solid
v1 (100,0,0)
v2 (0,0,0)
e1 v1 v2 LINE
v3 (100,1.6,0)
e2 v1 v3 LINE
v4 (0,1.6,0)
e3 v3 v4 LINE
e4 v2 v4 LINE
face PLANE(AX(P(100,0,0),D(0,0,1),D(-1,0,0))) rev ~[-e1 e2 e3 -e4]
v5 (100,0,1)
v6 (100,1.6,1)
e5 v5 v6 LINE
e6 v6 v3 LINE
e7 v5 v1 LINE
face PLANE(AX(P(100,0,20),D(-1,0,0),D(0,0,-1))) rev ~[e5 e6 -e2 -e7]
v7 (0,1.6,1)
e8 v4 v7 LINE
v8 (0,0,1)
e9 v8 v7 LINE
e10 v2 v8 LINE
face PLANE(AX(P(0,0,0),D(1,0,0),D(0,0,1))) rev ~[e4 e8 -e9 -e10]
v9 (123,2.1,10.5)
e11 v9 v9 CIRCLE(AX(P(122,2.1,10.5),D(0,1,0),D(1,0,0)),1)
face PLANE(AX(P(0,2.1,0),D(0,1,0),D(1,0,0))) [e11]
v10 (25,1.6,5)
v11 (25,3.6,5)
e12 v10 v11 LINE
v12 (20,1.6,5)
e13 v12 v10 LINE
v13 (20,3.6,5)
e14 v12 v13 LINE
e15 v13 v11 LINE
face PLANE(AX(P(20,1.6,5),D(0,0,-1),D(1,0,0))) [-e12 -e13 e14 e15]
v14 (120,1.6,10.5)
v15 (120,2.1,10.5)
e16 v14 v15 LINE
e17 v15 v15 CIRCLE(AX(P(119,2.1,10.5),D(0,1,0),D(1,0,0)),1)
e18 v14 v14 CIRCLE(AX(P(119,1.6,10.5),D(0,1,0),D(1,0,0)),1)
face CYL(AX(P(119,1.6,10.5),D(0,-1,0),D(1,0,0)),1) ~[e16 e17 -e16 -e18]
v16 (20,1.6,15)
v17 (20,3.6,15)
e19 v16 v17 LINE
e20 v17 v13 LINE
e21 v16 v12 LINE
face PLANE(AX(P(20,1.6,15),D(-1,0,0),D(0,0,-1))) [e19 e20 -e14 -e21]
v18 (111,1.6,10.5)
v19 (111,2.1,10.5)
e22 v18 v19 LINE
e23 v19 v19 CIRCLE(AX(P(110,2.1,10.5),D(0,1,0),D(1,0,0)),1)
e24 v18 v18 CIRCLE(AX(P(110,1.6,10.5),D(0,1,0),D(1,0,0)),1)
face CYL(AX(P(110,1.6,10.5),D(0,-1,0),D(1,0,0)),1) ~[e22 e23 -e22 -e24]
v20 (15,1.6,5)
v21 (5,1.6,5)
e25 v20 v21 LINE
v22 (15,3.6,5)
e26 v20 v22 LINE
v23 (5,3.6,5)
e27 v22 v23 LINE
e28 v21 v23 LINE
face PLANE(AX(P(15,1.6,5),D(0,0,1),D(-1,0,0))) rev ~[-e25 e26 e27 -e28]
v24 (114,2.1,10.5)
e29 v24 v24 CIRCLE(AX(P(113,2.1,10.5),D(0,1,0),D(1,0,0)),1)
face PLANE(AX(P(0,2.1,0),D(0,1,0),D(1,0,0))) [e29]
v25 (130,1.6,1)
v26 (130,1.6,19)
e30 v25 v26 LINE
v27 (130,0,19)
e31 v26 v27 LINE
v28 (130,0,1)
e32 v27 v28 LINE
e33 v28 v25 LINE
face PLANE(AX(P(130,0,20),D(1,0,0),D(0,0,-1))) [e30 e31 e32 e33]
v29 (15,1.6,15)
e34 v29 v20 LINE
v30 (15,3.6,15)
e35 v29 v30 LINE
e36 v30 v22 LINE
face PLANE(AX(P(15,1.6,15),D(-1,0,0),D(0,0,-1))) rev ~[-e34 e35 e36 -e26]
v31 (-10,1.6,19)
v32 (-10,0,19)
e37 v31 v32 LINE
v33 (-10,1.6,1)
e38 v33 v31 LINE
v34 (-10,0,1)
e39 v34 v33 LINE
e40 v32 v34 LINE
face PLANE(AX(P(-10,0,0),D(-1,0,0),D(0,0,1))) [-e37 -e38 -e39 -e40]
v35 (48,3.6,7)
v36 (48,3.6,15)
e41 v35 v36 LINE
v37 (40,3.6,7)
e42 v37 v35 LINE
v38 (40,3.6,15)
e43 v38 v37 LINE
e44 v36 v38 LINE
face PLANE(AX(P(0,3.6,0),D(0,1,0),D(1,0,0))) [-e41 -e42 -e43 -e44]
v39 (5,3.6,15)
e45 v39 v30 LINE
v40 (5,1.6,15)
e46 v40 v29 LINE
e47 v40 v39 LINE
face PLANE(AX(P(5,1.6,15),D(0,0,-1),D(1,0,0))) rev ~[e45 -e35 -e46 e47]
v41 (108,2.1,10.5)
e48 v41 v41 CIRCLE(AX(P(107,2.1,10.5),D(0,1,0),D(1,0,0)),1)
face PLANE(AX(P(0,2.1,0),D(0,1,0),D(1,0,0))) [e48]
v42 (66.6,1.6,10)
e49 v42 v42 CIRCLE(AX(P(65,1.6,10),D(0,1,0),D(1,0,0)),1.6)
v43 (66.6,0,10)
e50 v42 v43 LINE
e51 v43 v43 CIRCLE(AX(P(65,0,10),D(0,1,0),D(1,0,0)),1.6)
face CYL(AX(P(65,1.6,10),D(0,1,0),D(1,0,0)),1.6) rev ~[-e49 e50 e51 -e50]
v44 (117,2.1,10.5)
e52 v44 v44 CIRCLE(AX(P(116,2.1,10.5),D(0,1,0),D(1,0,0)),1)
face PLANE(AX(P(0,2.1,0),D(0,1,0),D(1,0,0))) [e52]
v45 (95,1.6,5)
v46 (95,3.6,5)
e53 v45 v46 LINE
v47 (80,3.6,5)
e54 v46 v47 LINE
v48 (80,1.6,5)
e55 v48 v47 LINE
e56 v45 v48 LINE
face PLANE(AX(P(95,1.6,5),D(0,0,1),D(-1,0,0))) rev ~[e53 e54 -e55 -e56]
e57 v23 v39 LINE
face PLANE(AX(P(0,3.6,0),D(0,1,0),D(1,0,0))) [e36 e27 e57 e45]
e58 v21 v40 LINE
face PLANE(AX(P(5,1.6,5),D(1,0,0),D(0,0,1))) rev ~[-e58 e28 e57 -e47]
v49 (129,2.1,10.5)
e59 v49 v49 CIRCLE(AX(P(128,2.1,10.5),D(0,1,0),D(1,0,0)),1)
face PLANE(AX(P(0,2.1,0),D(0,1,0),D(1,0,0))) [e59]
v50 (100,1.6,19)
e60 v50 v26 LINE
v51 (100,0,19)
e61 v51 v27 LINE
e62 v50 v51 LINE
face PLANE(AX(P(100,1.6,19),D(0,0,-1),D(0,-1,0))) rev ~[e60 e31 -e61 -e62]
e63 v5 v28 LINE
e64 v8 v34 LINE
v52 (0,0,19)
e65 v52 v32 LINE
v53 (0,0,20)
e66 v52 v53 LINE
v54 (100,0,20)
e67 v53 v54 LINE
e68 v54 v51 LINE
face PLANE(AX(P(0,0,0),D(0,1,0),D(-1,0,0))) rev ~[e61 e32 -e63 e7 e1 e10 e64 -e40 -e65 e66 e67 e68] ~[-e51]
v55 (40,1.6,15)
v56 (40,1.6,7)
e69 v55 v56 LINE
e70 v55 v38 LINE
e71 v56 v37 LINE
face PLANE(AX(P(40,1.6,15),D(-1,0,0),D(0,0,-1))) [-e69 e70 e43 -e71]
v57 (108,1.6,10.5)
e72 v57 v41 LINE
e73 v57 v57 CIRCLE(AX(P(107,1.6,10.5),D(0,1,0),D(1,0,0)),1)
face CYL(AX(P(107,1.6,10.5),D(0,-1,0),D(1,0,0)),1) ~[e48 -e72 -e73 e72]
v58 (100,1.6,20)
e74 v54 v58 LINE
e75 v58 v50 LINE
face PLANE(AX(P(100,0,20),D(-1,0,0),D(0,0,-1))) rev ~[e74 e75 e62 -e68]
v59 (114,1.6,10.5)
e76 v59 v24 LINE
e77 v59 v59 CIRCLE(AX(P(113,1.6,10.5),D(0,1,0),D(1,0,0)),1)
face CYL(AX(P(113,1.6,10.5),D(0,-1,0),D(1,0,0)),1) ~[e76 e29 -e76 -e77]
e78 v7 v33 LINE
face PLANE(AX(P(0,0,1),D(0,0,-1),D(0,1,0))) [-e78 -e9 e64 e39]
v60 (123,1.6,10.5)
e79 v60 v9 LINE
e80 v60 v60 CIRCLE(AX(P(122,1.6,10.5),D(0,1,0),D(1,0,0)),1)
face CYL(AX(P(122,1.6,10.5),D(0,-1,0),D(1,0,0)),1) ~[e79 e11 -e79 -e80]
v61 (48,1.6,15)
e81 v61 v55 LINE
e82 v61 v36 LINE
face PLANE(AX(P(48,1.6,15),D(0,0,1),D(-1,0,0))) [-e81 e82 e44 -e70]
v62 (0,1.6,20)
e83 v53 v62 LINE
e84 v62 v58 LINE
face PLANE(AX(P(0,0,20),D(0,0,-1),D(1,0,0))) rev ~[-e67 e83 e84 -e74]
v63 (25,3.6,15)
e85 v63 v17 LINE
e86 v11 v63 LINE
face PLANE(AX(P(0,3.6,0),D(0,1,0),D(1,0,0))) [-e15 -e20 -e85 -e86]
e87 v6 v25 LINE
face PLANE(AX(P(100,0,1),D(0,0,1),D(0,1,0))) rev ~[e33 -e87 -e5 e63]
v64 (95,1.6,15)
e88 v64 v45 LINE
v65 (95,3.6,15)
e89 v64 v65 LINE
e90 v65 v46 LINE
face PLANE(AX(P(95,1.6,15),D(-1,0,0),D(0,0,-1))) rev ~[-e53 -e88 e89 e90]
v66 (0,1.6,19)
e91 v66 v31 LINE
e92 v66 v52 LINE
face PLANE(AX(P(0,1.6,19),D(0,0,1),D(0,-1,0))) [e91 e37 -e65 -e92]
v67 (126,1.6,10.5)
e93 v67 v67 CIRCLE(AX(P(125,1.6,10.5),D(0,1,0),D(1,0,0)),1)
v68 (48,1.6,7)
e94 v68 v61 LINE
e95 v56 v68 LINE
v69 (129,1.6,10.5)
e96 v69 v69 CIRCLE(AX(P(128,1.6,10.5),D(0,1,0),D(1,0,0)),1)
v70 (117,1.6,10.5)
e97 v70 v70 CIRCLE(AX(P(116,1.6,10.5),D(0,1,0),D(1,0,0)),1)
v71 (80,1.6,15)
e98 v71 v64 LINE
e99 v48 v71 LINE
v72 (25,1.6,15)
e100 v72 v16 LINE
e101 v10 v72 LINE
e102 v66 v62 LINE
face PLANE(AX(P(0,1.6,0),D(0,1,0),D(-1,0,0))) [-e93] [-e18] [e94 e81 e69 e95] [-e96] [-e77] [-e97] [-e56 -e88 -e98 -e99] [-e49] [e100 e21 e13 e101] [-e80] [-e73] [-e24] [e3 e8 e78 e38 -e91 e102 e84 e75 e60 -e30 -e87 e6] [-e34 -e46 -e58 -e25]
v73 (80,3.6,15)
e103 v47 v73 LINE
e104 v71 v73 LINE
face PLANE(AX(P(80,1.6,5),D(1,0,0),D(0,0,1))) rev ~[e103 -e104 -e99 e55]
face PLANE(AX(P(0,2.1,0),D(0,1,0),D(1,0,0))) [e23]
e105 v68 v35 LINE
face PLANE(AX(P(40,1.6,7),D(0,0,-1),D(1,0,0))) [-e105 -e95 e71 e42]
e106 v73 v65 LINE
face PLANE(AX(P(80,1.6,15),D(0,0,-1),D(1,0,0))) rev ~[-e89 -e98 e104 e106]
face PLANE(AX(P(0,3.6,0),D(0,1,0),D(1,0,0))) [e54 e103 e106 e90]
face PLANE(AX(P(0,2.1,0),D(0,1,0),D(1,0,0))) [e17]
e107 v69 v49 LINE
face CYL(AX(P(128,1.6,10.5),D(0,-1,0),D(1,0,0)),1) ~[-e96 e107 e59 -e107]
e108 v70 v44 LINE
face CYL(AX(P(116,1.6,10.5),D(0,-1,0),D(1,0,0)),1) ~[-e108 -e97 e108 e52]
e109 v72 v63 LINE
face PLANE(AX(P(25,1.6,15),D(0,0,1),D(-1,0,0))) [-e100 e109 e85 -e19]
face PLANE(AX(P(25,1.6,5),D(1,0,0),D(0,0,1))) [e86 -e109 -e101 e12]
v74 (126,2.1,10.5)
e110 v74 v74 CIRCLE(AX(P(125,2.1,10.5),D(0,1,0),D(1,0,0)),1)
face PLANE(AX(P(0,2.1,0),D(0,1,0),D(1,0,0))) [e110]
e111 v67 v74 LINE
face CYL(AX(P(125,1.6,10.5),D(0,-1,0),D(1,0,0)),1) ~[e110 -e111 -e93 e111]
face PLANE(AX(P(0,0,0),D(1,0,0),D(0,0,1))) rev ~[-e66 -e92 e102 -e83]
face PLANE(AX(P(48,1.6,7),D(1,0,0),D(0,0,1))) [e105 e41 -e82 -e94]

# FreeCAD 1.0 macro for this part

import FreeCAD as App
import Part
import Sketcher

V = App.Vector
Q = App.Units.Quantity


def add_polygon(sketch, points):
    """Adds a closed chain of lines whose ends are joined by coincident constraints."""
    first, n = sketch.GeometryCount, len(points)
    for a, b in zip(points, points[1:] + points[:1]):
        sketch.addGeometry(Part.LineSegment(App.Vector(*a, 0), App.Vector(*b, 0)), False)
    for i in range(n):
        sketch.addConstraint(Sketcher.Constraint("Coincident", first + i, 2, first + (i + 1) % n, 1))

doc = App.newDocument("Part")
body = doc.addObject("PartDesign::Body", "Body")

# Sketch on XZ plane
sketch1 = body.newObject("Sketcher::SketchObject", "Sketch")
sketch1.AttachmentSupport = (doc.getObject("XZ_Plane"), [""])
sketch1.MapMode = "FlatFace"
add_polygon(sketch1, [(0, 0), (0, 20), (100, 20), (100, 0)])  # lines 0-3
sketch1.addConstraint(Sketcher.Constraint("Vertical", 0))
sketch1.addConstraint(Sketcher.Constraint("Horizontal", 1))
sketch1.addConstraint(Sketcher.Constraint("Vertical", 2))
sketch1.addConstraint(Sketcher.Constraint("Horizontal", 3))
sketch1.addConstraint(Sketcher.Constraint("Coincident", 3, 2, -1, 1))
sketch1.addConstraint(Sketcher.Constraint("DistanceX", 1, 1, 1, 2, Q("100 mm")))
sketch1.addConstraint(Sketcher.Constraint("DistanceY", 0, 1, 0, 2, Q("20 mm")))
pad1 = body.newObject("PartDesign::Pad", "Pad")
pad1.Profile = sketch1
pad1.Length = 1.6
pad1.Reversed = True

# Sketch on XZ plane
sketch2 = body.newObject("Sketcher::SketchObject", "Sketch001")
sketch2.AttachmentSupport = (doc.getObject("XZ_Plane"), [""])
sketch2.MapMode = "FlatFace"
sketch2.AttachmentOffset = App.Placement(V(0, 0, -1.6), App.Rotation())
add_polygon(sketch2, [(5, 5), (5, 15), (15, 15), (15, 5)])  # lines 0-3
sketch2.addConstraint(Sketcher.Constraint("Vertical", 0))
sketch2.addConstraint(Sketcher.Constraint("Horizontal", 1))
sketch2.addConstraint(Sketcher.Constraint("Vertical", 2))
sketch2.addConstraint(Sketcher.Constraint("Horizontal", 3))
sketch2.addConstraint(Sketcher.Constraint("Equal", 3, 0))
sketch2.addConstraint(Sketcher.Constraint("DistanceX", 1, 1, 1, 2, Q("10 mm")))
sketch2.addConstraint(Sketcher.Constraint("DistanceX", -1, 1, 0, 2, Q("5 mm")))
sketch2.addConstraint(Sketcher.Constraint("DistanceY", -1, 1, 2, 2, Q("5 mm")))
pad2 = body.newObject("PartDesign::Pad", "Pad001")
pad2.Profile = sketch2
pad2.Length = 2
pad2.Reversed = True

# Sketch on XZ plane
sketch3 = body.newObject("Sketcher::SketchObject", "Sketch002")
sketch3.AttachmentSupport = (doc.getObject("XZ_Plane"), [""])
sketch3.MapMode = "FlatFace"
sketch3.AttachmentOffset = App.Placement(V(0, 0, -1.6), App.Rotation())
add_polygon(sketch3, [(80, 5), (80, 15), (95, 15), (95, 5)])  # lines 0-3
sketch3.addConstraint(Sketcher.Constraint("Vertical", 0))
sketch3.addConstraint(Sketcher.Constraint("Horizontal", 1))
sketch3.addConstraint(Sketcher.Constraint("Vertical", 2))
sketch3.addConstraint(Sketcher.Constraint("Horizontal", 3))
sketch3.addConstraint(Sketcher.Constraint("DistanceX", 1, 1, 1, 2, Q("15 mm")))
sketch3.addConstraint(Sketcher.Constraint("DistanceY", 0, 1, 0, 2, Q("10 mm")))
sketch3.addConstraint(Sketcher.Constraint("DistanceY", -1, 1, 0, 2, Q("15 mm")))
sketch3.addConstraint(Sketcher.Constraint("DistanceX", -1, 1, 0, 2, Q("80 mm")))
pad3 = body.newObject("PartDesign::Pad", "Pad002")
pad3.Profile = sketch3
pad3.Length = 2
pad3.Reversed = True

# Sketch on XZ plane
sketch4 = body.newObject("Sketcher::SketchObject", "Sketch003")
sketch4.AttachmentSupport = (doc.getObject("XZ_Plane"), [""])
sketch4.MapMode = "FlatFace"
sketch4.AttachmentOffset = App.Placement(V(0, 0, -1.6), App.Rotation())
add_polygon(sketch4, [(40, 15), (48, 15), (48, 7), (40, 7)])  # lines 0-3
sketch4.addConstraint(Sketcher.Constraint("Horizontal", 0))
sketch4.addConstraint(Sketcher.Constraint("Vertical", 1))
sketch4.addConstraint(Sketcher.Constraint("Horizontal", 2))
sketch4.addConstraint(Sketcher.Constraint("Vertical", 3))
sketch4.addConstraint(Sketcher.Constraint("Equal", 2, 1))
sketch4.addConstraint(Sketcher.Constraint("DistanceX", 0, 1, 0, 2, Q("8 mm")))
sketch4.addConstraint(Sketcher.Constraint("DistanceX", -1, 1, 2, 2, Q("40 mm")))
sketch4.addConstraint(Sketcher.Constraint("DistanceY", -1, 1, 0, 2, Q("15 mm")))
pad4 = body.newObject("PartDesign::Pad", "Pad003")
pad4.Profile = sketch4
pad4.Length = 2
pad4.Reversed = True

# Sketch on XZ plane
sketch5 = body.newObject("Sketcher::SketchObject", "Sketch004")
sketch5.AttachmentSupport = (doc.getObject("XZ_Plane"), [""])
sketch5.MapMode = "FlatFace"
sketch5.AttachmentOffset = App.Placement(V(0, 0, -1.6), App.Rotation())
add_polygon(sketch5, [(20, 15), (25, 15), (25, 5), (20, 5)])  # lines 0-3
sketch5.addConstraint(Sketcher.Constraint("Horizontal", 0))
sketch5.addConstraint(Sketcher.Constraint("Vertical", 1))
sketch5.addConstraint(Sketcher.Constraint("Horizontal", 2))
sketch5.addConstraint(Sketcher.Constraint("Vertical", 3))
sketch5.addConstraint(Sketcher.Constraint("DistanceX", 0, 1, 0, 2, Q("5 mm")))
sketch5.addConstraint(Sketcher.Constraint("DistanceY", 1, 2, 1, 1, Q("10 mm")))
sketch5.addConstraint(Sketcher.Constraint("DistanceY", -1, 1, 1, 2, Q("5 mm")))
sketch5.addConstraint(Sketcher.Constraint("DistanceX", -1, 1, 2, 2, Q("20 mm")))
pad5 = body.newObject("PartDesign::Pad", "Pad004")
pad5.Profile = sketch5
pad5.Length = 2
pad5.Reversed = True

# Sketch on YZ plane
sketch6 = body.newObject("Sketcher::SketchObject", "Sketch005")
sketch6.AttachmentSupport = (doc.getObject("YZ_Plane"), [""])
sketch6.MapMode = "FlatFace"
sketch6.AttachmentOffset = App.Placement(V(0, 0, 100), App.Rotation())
add_polygon(sketch6, [(1.6, 19), (0, 19), (0, 1), (1.6, 1)])  # lines 0-3
sketch6.addConstraint(Sketcher.Constraint("Horizontal", 0))
sketch6.addConstraint(Sketcher.Constraint("Vertical", 1))
sketch6.addConstraint(Sketcher.Constraint("Horizontal", 2))
sketch6.addConstraint(Sketcher.Constraint("Vertical", 3))
sketch6.addConstraint(Sketcher.Constraint("PointOnObject", 0, 2, -2))
sketch6.addConstraint(Sketcher.Constraint("DistanceY", 1, 2, 1, 1, Q("18 mm")))
sketch6.addConstraint(Sketcher.Constraint("DistanceX", 0, 2, 0, 1, Q("1.6 mm")))
sketch6.addConstraint(Sketcher.Constraint("DistanceY", -1, 1, 1, 2, Q("1 mm")))
pad6 = body.newObject("PartDesign::Pad", "Pad005")
pad6.Profile = sketch6
pad6.Length = 30

# Sketch on YZ plane
sketch7 = body.newObject("Sketcher::SketchObject", "Sketch006")
sketch7.AttachmentSupport = (doc.getObject("YZ_Plane"), [""])
sketch7.MapMode = "FlatFace"
add_polygon(sketch7, [(1.6, 19), (1.6, 1), (0, 1), (0, 19)])  # lines 0-3
sketch7.addConstraint(Sketcher.Constraint("Vertical", 0))
sketch7.addConstraint(Sketcher.Constraint("Horizontal", 1))
sketch7.addConstraint(Sketcher.Constraint("Vertical", 2))
sketch7.addConstraint(Sketcher.Constraint("Horizontal", 3))
sketch7.addConstraint(Sketcher.Constraint("PointOnObject", 1, 2, -2))
sketch7.addConstraint(Sketcher.Constraint("DistanceY", 0, 2, 0, 1, Q("18 mm")))
sketch7.addConstraint(Sketcher.Constraint("DistanceX", 1, 2, 1, 1, Q("1.6 mm")))
sketch7.addConstraint(Sketcher.Constraint("DistanceY", -1, 1, 0, 2, Q("1 mm")))
pad7 = body.newObject("PartDesign::Pad", "Pad006")
pad7.Profile = sketch7
pad7.Length = 10
pad7.Reversed = True

# Sketch on XZ plane
sketch8 = body.newObject("Sketcher::SketchObject", "Sketch007")
sketch8.AttachmentSupport = (doc.getObject("XZ_Plane"), [""])
sketch8.MapMode = "FlatFace"
sketch8.AttachmentOffset = App.Placement(V(0, 0, -1.6), App.Rotation())
sketch8.addGeometry(Part.Circle(V(128, 10.5, 0), V(0, 0, 1), 1), False)
sketch8.addGeometry(Part.Circle(V(125, 10.5, 0), V(0, 0, 1), 1), False)
sketch8.addGeometry(Part.Circle(V(122, 10.5, 0), V(0, 0, 1), 1), False)
sketch8.addGeometry(Part.Circle(V(119, 10.5, 0), V(0, 0, 1), 1), False)
sketch8.addGeometry(Part.Circle(V(116, 10.5, 0), V(0, 0, 1), 1), False)
sketch8.addGeometry(Part.Circle(V(113, 10.5, 0), V(0, 0, 1), 1), False)
sketch8.addGeometry(Part.Circle(V(110, 10.5, 0), V(0, 0, 1), 1), False)
sketch8.addGeometry(Part.Circle(V(107, 10.5, 0), V(0, 0, 1), 1), False)
sketch8.addConstraint(Sketcher.Constraint("Equal", 0, 1))
sketch8.addConstraint(Sketcher.Constraint("Equal", 1, 2))
sketch8.addConstraint(Sketcher.Constraint("Equal", 2, 3))
sketch8.addConstraint(Sketcher.Constraint("Equal", 3, 4))
sketch8.addConstraint(Sketcher.Constraint("Equal", 4, 5))
sketch8.addConstraint(Sketcher.Constraint("Equal", 5, 6))
sketch8.addConstraint(Sketcher.Constraint("Equal", 6, 7))
sketch8.addConstraint(Sketcher.Constraint("Horizontal", 0, 3, 1, 3))
sketch8.addConstraint(Sketcher.Constraint("Horizontal", 1, 3, 2, 3))
sketch8.addConstraint(Sketcher.Constraint("Horizontal", 2, 3, 3, 3))
sketch8.addConstraint(Sketcher.Constraint("Horizontal", 3, 3, 4, 3))
sketch8.addConstraint(Sketcher.Constraint("Horizontal", 4, 3, 5, 3))
sketch8.addConstraint(Sketcher.Constraint("Horizontal", 5, 3, 6, 3))
sketch8.addConstraint(Sketcher.Constraint("Horizontal", 6, 3, 7, 3))
sketch8.addConstraint(Sketcher.Constraint("Diameter", 0, Q("2 mm")))
sketch8.addConstraint(Sketcher.Constraint("DistanceX", 1, 3, 0, 3, Q("3 mm")))
sketch8.addConstraint(Sketcher.Constraint("DistanceX", 2, 3, 1, 3, Q("3 mm")))
sketch8.addConstraint(Sketcher.Constraint("DistanceX", 3, 3, 2, 3, Q("3 mm")))
sketch8.addConstraint(Sketcher.Constraint("DistanceX", 4, 3, 3, 3, Q("3 mm")))
sketch8.addConstraint(Sketcher.Constraint("DistanceX", 5, 3, 4, 3, Q("3 mm")))
sketch8.addConstraint(Sketcher.Constraint("DistanceX", 6, 3, 5, 3, Q("3 mm")))
sketch8.addConstraint(Sketcher.Constraint("DistanceX", 7, 3, 6, 3, Q("3 mm")))
sketch8.addConstraint(Sketcher.Constraint("DistanceX", -1, 1, 0, 3, Q("128 mm")))
sketch8.addConstraint(Sketcher.Constraint("DistanceY", -1, 1, 0, 3, Q("10.5 mm")))
pad8 = body.newObject("PartDesign::Pad", "Pad007")
pad8.Profile = sketch8
pad8.Length = 0.5
pad8.Reversed = True

# Sketch on XZ plane
sketch9 = body.newObject("Sketcher::SketchObject", "Sketch008")
sketch9.AttachmentSupport = (doc.getObject("XZ_Plane"), [""])
sketch9.MapMode = "FlatFace"
sketch9.AttachmentOffset = App.Placement(V(0, 0, -1.6), App.Rotation())
sketch9.addGeometry(Part.Circle(V(65, 10, 0), V(0, 0, 1), 1.6), False)
sketch9.addConstraint(Sketcher.Constraint("Diameter", 0, Q("3.2 mm")))
sketch9.addConstraint(Sketcher.Constraint("DistanceX", -1, 1, 0, 3, Q("65 mm")))
sketch9.addConstraint(Sketcher.Constraint("DistanceY", -1, 1, 0, 3, Q("10 mm")))
pocket1 = body.newObject("PartDesign::Pocket", "Pocket")
pocket1.Profile = sketch9
pocket1.Length = 1.6
pocket1.Reversed = True

doc.recompute()
